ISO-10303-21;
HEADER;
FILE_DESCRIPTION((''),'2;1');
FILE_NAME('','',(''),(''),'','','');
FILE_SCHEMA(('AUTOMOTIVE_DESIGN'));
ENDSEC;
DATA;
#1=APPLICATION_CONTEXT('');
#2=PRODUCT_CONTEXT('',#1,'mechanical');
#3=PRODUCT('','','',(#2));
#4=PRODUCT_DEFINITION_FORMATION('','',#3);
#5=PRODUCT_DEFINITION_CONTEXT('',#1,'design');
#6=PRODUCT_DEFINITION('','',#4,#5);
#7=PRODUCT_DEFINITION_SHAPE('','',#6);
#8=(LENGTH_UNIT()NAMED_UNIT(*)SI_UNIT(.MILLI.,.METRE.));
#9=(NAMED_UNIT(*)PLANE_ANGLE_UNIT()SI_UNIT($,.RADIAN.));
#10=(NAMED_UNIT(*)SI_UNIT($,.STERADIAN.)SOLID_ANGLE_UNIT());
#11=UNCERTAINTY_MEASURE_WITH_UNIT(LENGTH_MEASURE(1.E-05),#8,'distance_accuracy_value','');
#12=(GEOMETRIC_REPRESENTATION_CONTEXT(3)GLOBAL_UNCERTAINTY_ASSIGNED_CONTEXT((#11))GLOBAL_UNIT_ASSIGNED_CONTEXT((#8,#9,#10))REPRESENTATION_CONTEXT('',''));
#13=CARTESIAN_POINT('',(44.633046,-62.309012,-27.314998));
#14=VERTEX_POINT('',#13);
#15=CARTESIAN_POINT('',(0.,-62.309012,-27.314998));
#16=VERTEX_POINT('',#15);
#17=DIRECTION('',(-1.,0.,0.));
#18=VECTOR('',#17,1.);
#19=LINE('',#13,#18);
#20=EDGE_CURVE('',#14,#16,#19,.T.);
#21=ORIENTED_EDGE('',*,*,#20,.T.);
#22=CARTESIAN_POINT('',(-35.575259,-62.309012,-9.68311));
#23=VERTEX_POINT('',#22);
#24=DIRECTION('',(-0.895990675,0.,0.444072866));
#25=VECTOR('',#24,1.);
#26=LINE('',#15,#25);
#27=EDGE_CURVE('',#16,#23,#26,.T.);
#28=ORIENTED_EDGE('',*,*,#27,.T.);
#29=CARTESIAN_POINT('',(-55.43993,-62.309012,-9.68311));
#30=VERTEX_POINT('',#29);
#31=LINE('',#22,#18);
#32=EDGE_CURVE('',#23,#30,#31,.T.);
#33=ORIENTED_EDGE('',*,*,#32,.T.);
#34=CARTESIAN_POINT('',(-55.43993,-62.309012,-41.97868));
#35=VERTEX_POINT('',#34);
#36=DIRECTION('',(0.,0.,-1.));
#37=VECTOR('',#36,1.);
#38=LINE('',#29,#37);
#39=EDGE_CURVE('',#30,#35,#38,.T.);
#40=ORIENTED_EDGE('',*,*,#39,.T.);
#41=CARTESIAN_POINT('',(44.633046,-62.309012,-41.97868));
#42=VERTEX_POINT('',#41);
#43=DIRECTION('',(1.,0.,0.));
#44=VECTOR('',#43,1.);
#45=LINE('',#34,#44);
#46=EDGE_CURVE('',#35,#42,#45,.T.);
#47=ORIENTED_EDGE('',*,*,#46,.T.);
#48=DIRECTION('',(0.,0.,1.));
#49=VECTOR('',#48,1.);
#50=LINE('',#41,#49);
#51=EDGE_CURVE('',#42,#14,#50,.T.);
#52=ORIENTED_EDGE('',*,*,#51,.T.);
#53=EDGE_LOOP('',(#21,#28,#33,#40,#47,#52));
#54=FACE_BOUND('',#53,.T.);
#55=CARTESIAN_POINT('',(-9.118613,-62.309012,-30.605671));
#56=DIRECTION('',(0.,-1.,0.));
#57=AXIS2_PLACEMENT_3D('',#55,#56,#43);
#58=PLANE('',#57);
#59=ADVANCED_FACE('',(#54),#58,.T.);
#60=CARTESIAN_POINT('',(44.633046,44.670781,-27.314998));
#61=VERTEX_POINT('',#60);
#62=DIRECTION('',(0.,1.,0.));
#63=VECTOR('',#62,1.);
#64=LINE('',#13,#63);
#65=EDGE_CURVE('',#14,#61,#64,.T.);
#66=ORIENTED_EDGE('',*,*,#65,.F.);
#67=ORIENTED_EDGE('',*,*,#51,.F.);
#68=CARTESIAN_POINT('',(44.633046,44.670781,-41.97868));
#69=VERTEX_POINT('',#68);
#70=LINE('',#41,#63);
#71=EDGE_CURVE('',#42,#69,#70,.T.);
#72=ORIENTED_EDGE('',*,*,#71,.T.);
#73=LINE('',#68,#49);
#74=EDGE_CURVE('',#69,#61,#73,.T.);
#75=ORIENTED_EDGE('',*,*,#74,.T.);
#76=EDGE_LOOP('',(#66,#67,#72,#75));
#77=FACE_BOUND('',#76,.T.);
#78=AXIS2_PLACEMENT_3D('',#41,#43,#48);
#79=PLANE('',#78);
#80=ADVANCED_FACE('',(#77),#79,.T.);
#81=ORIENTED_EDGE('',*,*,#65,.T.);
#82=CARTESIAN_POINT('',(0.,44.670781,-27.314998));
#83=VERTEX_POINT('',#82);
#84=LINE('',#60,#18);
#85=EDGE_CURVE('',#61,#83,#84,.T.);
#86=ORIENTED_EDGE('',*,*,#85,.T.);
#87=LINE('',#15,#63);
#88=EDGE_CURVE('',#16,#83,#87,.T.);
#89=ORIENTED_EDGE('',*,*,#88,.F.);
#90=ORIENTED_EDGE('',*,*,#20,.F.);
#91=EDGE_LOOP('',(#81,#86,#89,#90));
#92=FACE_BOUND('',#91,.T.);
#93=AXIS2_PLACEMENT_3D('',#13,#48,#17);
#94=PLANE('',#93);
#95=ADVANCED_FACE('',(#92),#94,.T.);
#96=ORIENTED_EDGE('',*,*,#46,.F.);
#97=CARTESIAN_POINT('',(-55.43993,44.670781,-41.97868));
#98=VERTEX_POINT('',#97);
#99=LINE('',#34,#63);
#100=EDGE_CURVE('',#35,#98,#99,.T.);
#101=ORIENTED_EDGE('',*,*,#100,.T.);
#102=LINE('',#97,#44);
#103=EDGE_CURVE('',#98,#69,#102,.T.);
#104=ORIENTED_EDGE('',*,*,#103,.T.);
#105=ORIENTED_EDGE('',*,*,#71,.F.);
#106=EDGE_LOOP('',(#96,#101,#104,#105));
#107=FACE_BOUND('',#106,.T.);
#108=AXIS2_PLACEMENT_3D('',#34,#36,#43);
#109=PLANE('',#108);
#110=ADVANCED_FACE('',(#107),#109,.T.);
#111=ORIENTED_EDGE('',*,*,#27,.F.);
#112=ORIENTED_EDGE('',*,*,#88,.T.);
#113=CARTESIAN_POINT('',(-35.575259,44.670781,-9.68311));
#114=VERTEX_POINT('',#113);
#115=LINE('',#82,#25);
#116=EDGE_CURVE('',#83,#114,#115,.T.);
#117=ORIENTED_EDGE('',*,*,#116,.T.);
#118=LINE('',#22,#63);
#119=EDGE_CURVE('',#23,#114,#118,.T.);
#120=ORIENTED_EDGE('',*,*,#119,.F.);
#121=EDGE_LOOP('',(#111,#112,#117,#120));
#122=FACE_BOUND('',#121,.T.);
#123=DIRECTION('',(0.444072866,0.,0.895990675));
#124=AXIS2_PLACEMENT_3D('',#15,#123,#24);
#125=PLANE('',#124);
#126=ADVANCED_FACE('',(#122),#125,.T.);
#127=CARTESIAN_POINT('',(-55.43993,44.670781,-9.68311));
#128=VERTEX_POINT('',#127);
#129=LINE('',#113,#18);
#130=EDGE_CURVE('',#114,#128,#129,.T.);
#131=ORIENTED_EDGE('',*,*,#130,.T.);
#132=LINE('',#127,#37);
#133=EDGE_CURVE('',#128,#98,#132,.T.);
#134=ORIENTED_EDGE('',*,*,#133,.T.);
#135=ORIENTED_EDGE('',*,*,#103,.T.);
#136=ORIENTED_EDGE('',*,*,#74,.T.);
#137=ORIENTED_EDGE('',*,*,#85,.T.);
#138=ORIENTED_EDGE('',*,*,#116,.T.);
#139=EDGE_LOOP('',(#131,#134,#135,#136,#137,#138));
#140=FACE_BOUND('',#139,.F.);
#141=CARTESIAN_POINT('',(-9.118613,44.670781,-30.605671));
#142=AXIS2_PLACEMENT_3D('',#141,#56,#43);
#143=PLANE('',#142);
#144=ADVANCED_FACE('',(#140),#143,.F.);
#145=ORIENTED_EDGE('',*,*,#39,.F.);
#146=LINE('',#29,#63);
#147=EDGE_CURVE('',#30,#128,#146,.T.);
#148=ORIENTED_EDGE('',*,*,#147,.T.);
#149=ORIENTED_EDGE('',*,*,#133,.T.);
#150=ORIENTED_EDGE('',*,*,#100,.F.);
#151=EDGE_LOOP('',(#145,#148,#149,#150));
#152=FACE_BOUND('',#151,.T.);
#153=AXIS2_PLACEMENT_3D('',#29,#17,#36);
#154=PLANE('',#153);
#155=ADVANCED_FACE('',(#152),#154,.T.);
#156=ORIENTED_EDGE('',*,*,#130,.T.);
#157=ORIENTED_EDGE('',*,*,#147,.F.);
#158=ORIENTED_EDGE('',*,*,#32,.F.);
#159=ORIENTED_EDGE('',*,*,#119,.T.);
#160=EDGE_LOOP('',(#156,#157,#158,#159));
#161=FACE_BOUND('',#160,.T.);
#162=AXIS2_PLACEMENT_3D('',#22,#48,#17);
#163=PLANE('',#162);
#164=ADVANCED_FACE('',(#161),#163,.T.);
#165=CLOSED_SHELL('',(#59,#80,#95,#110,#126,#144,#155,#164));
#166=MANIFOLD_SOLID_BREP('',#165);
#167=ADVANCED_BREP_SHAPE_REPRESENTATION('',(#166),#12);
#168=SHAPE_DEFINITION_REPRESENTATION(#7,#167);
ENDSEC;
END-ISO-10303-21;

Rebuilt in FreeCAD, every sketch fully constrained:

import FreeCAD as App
import Part
import Sketcher
from FreeCAD import Vector
Q = App.Units.Quantity

doc = App.newDocument("Part")
params = doc.addObject("Spreadsheet::Sheet", "Params")
for row, (alias, value) in enumerate([
    ("pad1_length", "106.979793 mm"),
], start=1):
    params.set(f"A{row}", alias)
    params.set(f"B{row}", "=" + value)
    params.setAlias(f"B{row}", alias)

body = doc.addObject("PartDesign::Body", "Body")

# Sketch on XZ plane
sketch1 = body.newObject("Sketcher::SketchObject", "Sketch")
sketch1.AttachmentSupport = (doc.getObject("XZ_Plane"), [""])
sketch1.MapMode = "FlatFace"
sketch1.addGeometry([
    Part.LineSegment(Vector(-55.43993, -41.97868, 0), Vector(44.633046, -41.97868, 0)),  # 0
    Part.LineSegment(Vector(44.633046, -41.97868, 0), Vector(44.633046, -27.314998, 0)),  # 1
    Part.LineSegment(Vector(44.633046, -27.314998, 0), Vector(0, -27.314998, 0)),  # 2
    Part.LineSegment(Vector(0, -27.314998, 0), Vector(-35.575259, -9.68311, 0)),  # 3
    Part.LineSegment(Vector(-35.575259, -9.68311, 0), Vector(-55.43993, -9.68311, 0)),  # 4
    Part.LineSegment(Vector(-55.43993, -9.68311, 0), Vector(-55.43993, -41.97868, 0)),  # 5
], False)
sketch1.addConstraint([
    Sketcher.Constraint("Coincident", 0, 2, 1, 1),
    Sketcher.Constraint("Coincident", 1, 2, 2, 1),
    Sketcher.Constraint("Coincident", 2, 2, 3, 1),
    Sketcher.Constraint("Coincident", 3, 2, 4, 1),
    Sketcher.Constraint("Coincident", 4, 2, 5, 1),
    Sketcher.Constraint("Coincident", 5, 2, 0, 1),
    Sketcher.Constraint("Horizontal", 0),
    Sketcher.Constraint("Vertical", 1),
    Sketcher.Constraint("Horizontal", 2),
    Sketcher.Constraint("Horizontal", 4),
    Sketcher.Constraint("Vertical", 5),
    Sketcher.Constraint("PointOnObject", 2, 2, -2),
    Sketcher.Constraint("DistanceX", 4, 2, 4, 1, Q("19.864671 mm")),
    Sketcher.Constraint("DistanceY", 1, 1, 1, 2, Q("14.663682 mm")),
    Sketcher.Constraint("DistanceY", 5, 2, 5, 1, Q("32.29557 mm")),
    Sketcher.Constraint("DistanceX", 0, 1, 0, 2, Q("100.072976 mm")),
    Sketcher.Constraint("DistanceX", 2, 2, 2, 1, Q("44.633046 mm")),
    Sketcher.Constraint("DistanceY", 0, 2, -1, 1, Q("41.97868 mm")),
])
pad1 = body.newObject("PartDesign::Pad", "Pad")
pad1.Profile = sketch1
pad1.setExpression("Length", "Params.pad1_length")
pad1.Reversed = True
body2 = doc.addObject("PartDesign::Body", "Body001")
doc.recompute()

body.Placement = App.Placement(Vector(0, -62.309012, 0), App.Rotation(Vector(0, 0, 1), 0))
boolean = body2.newObject("PartDesign::Boolean", "Boolean")
boolean.Type = "Fuse"
boolean.addObjects([body])

doc.recompute()
